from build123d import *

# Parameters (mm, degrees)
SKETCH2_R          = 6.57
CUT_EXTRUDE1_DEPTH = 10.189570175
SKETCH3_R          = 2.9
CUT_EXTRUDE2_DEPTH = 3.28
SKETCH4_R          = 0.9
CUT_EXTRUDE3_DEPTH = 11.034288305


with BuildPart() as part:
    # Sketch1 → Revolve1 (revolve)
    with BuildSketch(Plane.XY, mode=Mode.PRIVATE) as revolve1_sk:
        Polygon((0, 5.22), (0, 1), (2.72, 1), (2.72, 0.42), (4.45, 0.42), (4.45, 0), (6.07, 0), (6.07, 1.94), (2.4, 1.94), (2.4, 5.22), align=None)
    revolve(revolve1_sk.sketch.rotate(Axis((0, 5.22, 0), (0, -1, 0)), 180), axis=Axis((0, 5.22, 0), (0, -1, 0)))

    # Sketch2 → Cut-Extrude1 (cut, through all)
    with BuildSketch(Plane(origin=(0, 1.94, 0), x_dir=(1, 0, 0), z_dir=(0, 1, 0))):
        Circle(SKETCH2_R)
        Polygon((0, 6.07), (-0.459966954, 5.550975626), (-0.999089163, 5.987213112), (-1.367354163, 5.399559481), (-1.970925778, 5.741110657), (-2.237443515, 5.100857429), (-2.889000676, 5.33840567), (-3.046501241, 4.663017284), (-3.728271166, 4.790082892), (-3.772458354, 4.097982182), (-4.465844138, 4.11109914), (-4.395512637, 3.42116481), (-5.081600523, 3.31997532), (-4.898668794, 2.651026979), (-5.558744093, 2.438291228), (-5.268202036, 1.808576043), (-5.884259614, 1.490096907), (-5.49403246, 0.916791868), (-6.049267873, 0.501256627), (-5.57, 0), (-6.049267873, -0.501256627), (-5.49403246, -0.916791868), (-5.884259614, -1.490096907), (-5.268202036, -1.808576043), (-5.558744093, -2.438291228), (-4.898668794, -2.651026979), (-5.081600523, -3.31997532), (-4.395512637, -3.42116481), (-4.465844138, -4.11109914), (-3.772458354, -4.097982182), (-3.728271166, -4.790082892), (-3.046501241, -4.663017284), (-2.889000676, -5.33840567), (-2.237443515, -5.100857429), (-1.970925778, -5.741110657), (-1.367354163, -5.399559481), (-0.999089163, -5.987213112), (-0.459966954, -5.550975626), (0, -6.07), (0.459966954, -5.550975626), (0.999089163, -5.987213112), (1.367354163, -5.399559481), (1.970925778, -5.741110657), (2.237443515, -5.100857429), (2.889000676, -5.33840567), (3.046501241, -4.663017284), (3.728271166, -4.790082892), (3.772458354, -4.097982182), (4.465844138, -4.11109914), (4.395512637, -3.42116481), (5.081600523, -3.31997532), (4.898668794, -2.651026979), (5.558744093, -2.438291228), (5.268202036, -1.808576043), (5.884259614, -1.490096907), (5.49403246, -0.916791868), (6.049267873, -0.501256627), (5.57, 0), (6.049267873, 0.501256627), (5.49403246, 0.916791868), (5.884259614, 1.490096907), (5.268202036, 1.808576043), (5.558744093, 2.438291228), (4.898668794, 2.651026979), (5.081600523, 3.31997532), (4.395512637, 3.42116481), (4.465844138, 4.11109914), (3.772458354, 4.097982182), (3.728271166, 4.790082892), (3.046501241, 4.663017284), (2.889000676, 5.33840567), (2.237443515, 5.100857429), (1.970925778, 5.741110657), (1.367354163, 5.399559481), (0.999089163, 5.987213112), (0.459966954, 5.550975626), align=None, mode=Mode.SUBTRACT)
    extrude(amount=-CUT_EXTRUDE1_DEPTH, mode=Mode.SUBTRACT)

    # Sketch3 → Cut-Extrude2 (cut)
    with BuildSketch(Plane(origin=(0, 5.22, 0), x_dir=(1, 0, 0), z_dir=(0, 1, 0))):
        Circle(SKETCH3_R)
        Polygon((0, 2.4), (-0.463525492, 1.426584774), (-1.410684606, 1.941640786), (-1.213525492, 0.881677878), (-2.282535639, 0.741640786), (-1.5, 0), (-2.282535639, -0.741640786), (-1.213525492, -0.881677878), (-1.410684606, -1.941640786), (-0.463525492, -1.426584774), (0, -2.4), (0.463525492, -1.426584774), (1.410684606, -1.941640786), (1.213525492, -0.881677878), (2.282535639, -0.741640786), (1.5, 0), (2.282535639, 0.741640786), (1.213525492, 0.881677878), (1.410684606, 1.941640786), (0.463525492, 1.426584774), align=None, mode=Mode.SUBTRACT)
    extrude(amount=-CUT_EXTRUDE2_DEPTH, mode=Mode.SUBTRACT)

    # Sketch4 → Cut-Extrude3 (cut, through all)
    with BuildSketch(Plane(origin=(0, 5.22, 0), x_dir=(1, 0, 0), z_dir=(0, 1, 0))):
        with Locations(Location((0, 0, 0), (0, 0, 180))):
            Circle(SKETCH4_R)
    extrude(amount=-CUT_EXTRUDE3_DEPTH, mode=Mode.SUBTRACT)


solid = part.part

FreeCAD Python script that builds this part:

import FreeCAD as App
import Part
import Sketcher

V = App.Vector


def add_polygon(sketch, points):
    """Adds a closed chain of lines whose ends are joined by coincident constraints."""
    first, n = sketch.GeometryCount, len(points)
    for a, b in zip(points, points[1:] + points[:1]):
        sketch.addGeometry(Part.LineSegment(App.Vector(*a, 0), App.Vector(*b, 0)), False)
    for i in range(n):
        sketch.addConstraint(Sketcher.Constraint("Coincident", first + i, 2, first + (i + 1) % n, 1))

doc = App.newDocument("Part")
params = doc.addObject("Spreadsheet::Sheet", "Params")
for row, (alias, value) in enumerate([
    ("sketch1_width", "2.4 mm"),
    ("sketch1_width2", "2.72 mm"),
    ("sketch1_width3", "1.73 mm"),
    ("sketch1_width4", "1.62 mm"),
    ("sketch1_height", "4.22 mm"),
    ("revolution_angle", "360 deg"),
    ("sketch2_diameter", "13.14 mm"),
    ("sketch3_diameter", "5.8 mm"),
    ("pocket2_length", "3.28 mm"),
    ("sketch4_diameter", "1.8 mm"),
], start=1):
    params.set(f"A{row}", alias)
    params.set(f"B{row}", "=" + value)
    params.setAlias(f"B{row}", alias)

body = doc.addObject("PartDesign::Body", "Body")

# Sketch on XY plane
sketch1 = body.newObject("Sketcher::SketchObject", "Sketch")
sketch1.AttachmentSupport = (doc.getObject("XY_Plane"), [""])
sketch1.MapMode = "FlatFace"
add_polygon(sketch1, [(0, 5.22), (0, 1), (2.72, 1), (2.72, 0.42), (4.45, 0.42), (4.45, 0), (6.07, 0), (6.07, 1.94), (2.4, 1.94), (2.4, 5.22)])  # lines 0-9
sketch1.addConstraint([
    Sketcher.Constraint("Vertical", 0),
    Sketcher.Constraint("Horizontal", 1),
    Sketcher.Constraint("Vertical", 2),
    Sketcher.Constraint("Horizontal", 3),
    Sketcher.Constraint("Vertical", 4),
    Sketcher.Constraint("Horizontal", 5),
    Sketcher.Constraint("Vertical", 6),
    Sketcher.Constraint("Horizontal", 7),
    Sketcher.Constraint("Vertical", 8),
    Sketcher.Constraint("Horizontal", 9),
    Sketcher.Constraint("PointOnObject", 0, 2, -2),
    Sketcher.Constraint("PointOnObject", 4, 2, -1),
    Sketcher.Constraint("DistanceX", 9, 2, 9, 1, 2.4),
    Sketcher.Constraint("DistanceY", -1, 1, 0, 2, 1.0),
    Sketcher.Constraint("DistanceX", 1, 1, 1, 2, 2.72),
    Sketcher.Constraint("DistanceX", 3, 1, 3, 2, 1.73),
    Sketcher.Constraint("DistanceX", 5, 1, 5, 2, 1.62),
    Sketcher.Constraint("DistanceY", 0, 2, 0, 1, 4.22),
    Sketcher.Constraint("DistanceY", 2, 2, 2, 1, 0.58),
    Sketcher.Constraint("DistanceY", 6, 1, 6, 2, 1.94),
])
sketch1.setExpression("Constraints[22]", "Params.sketch1_width")
sketch1.setExpression("Constraints[24]", "Params.sketch1_width2")
sketch1.setExpression("Constraints[25]", "Params.sketch1_width3")
sketch1.setExpression("Constraints[26]", "Params.sketch1_width4")
sketch1.setExpression("Constraints[27]", "Params.sketch1_height")
revolution = body.newObject("PartDesign::Revolution", "Revolution")
revolution.Profile = sketch1
revolution.ReferenceAxis = (sketch1, ["V_Axis"])
revolution.setExpression("Angle", "Params.revolution_angle")

# Sketch on XZ plane
sketch2 = body.newObject("Sketcher::SketchObject", "Sketch001")
sketch2.AttachmentSupport = (doc.getObject("XZ_Plane"), [""])
sketch2.MapMode = "FlatFace"
sketch2.AttachmentOffset = App.Placement(V(0, 0, -1.94), App.Rotation())
sketch2.addGeometry(Part.Circle(V(0, 0, 0), V(0, 0, 1), 6.6), False)  # 0
add_polygon(sketch2, [(-0.5, -5.6), (0, -6.1), (0.5, -5.6), (1, -6), (1.4, -5.4), (2, -5.7), (2.2, -5.1), (2.9, -5.3), (3, -4.7), (3.7, -4.8), (3.8, -4.1), (4.5, -4.1), (4.4, -3.4), (5.1, -3.3), (4.9, -2.7), (5.6, -2.4), (5.3, -1.8), (5.9, -1.5), (5.5, -0.9), (6, -0.5), (5.6, 0), (6, 0.5), (5.5, 0.9), (5.9, 1.5), (5.3, 1.8), (5.6, 2.4), (4.9, 2.7), (5.1, 3.3), (4.4, 3.4), (4.5, 4.1), (3.8, 4.1), (3.7, 4.8), (3, 4.7), (2.9, 5.3), (2.2, 5.1), (2, 5.7), (1.4, 5.4), (1, 6), (0.5, 5.6), (0, 6.1), (-0.5, 5.6), (-1, 6), (-1.4, 5.4), (-2, 5.7), (-2.2, 5.1), (-2.9, 5.3), (-3, 4.7), (-3.7, 4.8), (-3.8, 4.1), (-4.5, 4.1), (-4.4, 3.4), (-5.1, 3.3), (-4.9, 2.7), (-5.6, 2.4), (-5.3, 1.8), (-5.9, 1.5), (-5.5, 0.9), (-6, 0.5), (-5.6, 0), (-6, -0.5), (-5.5, -0.9), (-5.9, -1.5), (-5.3, -1.8), (-5.6, -2.4), (-4.9, -2.7), (-5.1, -3.3), (-4.4, -3.4), (-4.5, -4.1), (-3.8, -4.1), (-3.7, -4.8), (-3, -4.7), (-2.9, -5.3), (-2.2, -5.1), (-2, -5.7), (-1.4, -5.4), (-1, -6)])  # lines 1-76
sketch2.addConstraint([
    Sketcher.Constraint("Coincident", 0, 3, -1, 1),
    Sketcher.Constraint("Symmetric", 1, 2, 39, 2, -1, 1),
    Sketcher.Constraint("Symmetric", 2, 2, 40, 2, -1, 1),
    Sketcher.Constraint("Symmetric", 3, 2, 41, 2, -1, 1),
    Sketcher.Constraint("Symmetric", 4, 2, 42, 2, -1, 1),
    Sketcher.Constraint("Symmetric", 5, 2, 43, 2, -1, 1),
    Sketcher.Constraint("Symmetric", 6, 2, 44, 2, -1, 1),
    Sketcher.Constraint("Symmetric", 7, 2, 45, 2, -1, 1),
    Sketcher.Constraint("Symmetric", 8, 2, 46, 2, -1, 1),
    Sketcher.Constraint("Symmetric", 9, 2, 47, 2, -1, 1),
    Sketcher.Constraint("Symmetric", 10, 2, 48, 2, -1, 1),
    Sketcher.Constraint("Symmetric", 11, 2, 49, 2, -1, 1),
    Sketcher.Constraint("Symmetric", 12, 2, 50, 2, -1, 1),
    Sketcher.Constraint("Symmetric", 13, 2, 51, 2, -1, 1),
    Sketcher.Constraint("Symmetric", 14, 2, 52, 2, -1, 1),
    Sketcher.Constraint("Symmetric", 15, 2, 53, 2, -1, 1),
    Sketcher.Constraint("Symmetric", 16, 2, 54, 2, -1, 1),
    Sketcher.Constraint("Symmetric", 17, 2, 55, 2, -1, 1),
    Sketcher.Constraint("Symmetric", 18, 2, 56, 2, -1, 1),
    Sketcher.Constraint("Symmetric", 19, 2, 57, 2, -1, 1),
    Sketcher.Constraint("Symmetric", 20, 2, 58, 2, -1, 1),
    Sketcher.Constraint("Symmetric", 21, 2, 59, 2, -1, 1),
    Sketcher.Constraint("Symmetric", 22, 2, 60, 2, -1, 1),
    Sketcher.Constraint("Symmetric", 23, 2, 61, 2, -1, 1),
    Sketcher.Constraint("Symmetric", 24, 2, 62, 2, -1, 1),
    Sketcher.Constraint("Symmetric", 25, 2, 63, 2, -1, 1),
    Sketcher.Constraint("Symmetric", 26, 2, 64, 2, -1, 1),
    Sketcher.Constraint("Symmetric", 27, 2, 65, 2, -1, 1),
    Sketcher.Constraint("Symmetric", 28, 2, 66, 2, -1, 1),
    Sketcher.Constraint("Symmetric", 29, 2, 67, 2, -1, 1),
    Sketcher.Constraint("Symmetric", 30, 2, 68, 2, -1, 1),
    Sketcher.Constraint("Symmetric", 31, 2, 69, 2, -1, 1),
    Sketcher.Constraint("Symmetric", 32, 2, 70, 2, -1, 1),
    Sketcher.Constraint("Symmetric", 33, 2, 71, 2, -1, 1),
    Sketcher.Constraint("Symmetric", 34, 2, 72, 2, -1, 1),
    Sketcher.Constraint("Symmetric", 35, 2, 73, 2, -1, 1),
    Sketcher.Constraint("Symmetric", 36, 2, 74, 2, -1, 1),
    Sketcher.Constraint("Symmetric", 37, 2, 75, 2, -1, 1),
    Sketcher.Constraint("Symmetric", 38, 2, 76, 2, -1, 1),
    Sketcher.Constraint("Symmetric", 38, 2, 40, 2, -2),
    Sketcher.Constraint("Symmetric", 37, 2, 41, 2, -2),
    Sketcher.Constraint("Symmetric", 36, 2, 42, 2, -2),
    Sketcher.Constraint("Symmetric", 35, 2, 43, 2, -2),
    Sketcher.Constraint("Symmetric", 34, 2, 44, 2, -2),
    Sketcher.Constraint("Symmetric", 33, 2, 45, 2, -2),
    Sketcher.Constraint("Symmetric", 32, 2, 46, 2, -2),
    Sketcher.Constraint("Symmetric", 31, 2, 47, 2, -2),
    Sketcher.Constraint("Symmetric", 30, 2, 48, 2, -2),
    Sketcher.Constraint("Symmetric", 29, 2, 49, 2, -2),
    Sketcher.Constraint("Symmetric", 28, 2, 50, 2, -2),
    Sketcher.Constraint("Symmetric", 27, 2, 51, 2, -2),
    Sketcher.Constraint("Symmetric", 26, 2, 52, 2, -2),
    Sketcher.Constraint("Symmetric", 25, 2, 53, 2, -2),
    Sketcher.Constraint("Symmetric", 24, 2, 54, 2, -2),
    Sketcher.Constraint("Symmetric", 23, 2, 55, 2, -2),
    Sketcher.Constraint("Symmetric", 22, 2, 56, 2, -2),
    Sketcher.Constraint("Symmetric", 21, 2, 57, 2, -2),
    Sketcher.Constraint("PointOnObject", 1, 2, -2),
    Sketcher.Constraint("PointOnObject", 20, 2, -1),
    Sketcher.Constraint("Equal", 2, 3),
    Sketcher.Constraint("Equal", 3, 4),
    Sketcher.Constraint("Equal", 4, 5),
    Sketcher.Constraint("Equal", 5, 6),
    Sketcher.Constraint("Equal", 6, 7),
    Sketcher.Constraint("Equal", 7, 8),
    Sketcher.Constraint("Equal", 8, 9),
    Sketcher.Constraint("Equal", 9, 10),
    Sketcher.Constraint("Equal", 10, 11),
    Sketcher.Constraint("Equal", 11, 12),
    Sketcher.Constraint("Equal", 12, 13),
    Sketcher.Constraint("Equal", 13, 14),
    Sketcher.Constraint("Equal", 14, 15),
    Sketcher.Constraint("Equal", 15, 16),
    Sketcher.Constraint("Equal", 16, 17),
    Sketcher.Constraint("Equal", 17, 18),
    Sketcher.Constraint("Equal", 18, 19),
    Sketcher.Constraint("Equal", 19, 20),
    Sketcher.Constraint("Diameter", 0, 13.14),
    Sketcher.Constraint("DistanceY", 1, 2, -1, 1, 6.07),
    Sketcher.Constraint("DistanceX", -1, 1, 20, 2, 5.57),
    Sketcher.Constraint("DistanceX", -1, 1, 7, 2, 2.889001),
    Sketcher.Constraint("DistanceX", -1, 1, 8, 2, 3.046501),
    Sketcher.Constraint("DistanceY", 11, 2, -1, 1, 4.111099),
    Sketcher.Constraint("DistanceX", -1, 1, 13, 2, 5.081601),
    Sketcher.Constraint("Distance", 1, 0.69351),
    Sketcher.Constraint("DistanceX", -1, 1, 3, 2, 0.999089),
    Sketcher.Constraint("DistanceY", 4, 2, -1, 1, 5.399559),
    Sketcher.Constraint("DistanceY", 5, 2, -1, 1, 5.741111),
    Sketcher.Constraint("DistanceX", -1, 1, 9, 2, 3.728271),
    Sketcher.Constraint("DistanceX", -1, 1, 10, 2, 3.772458),
    Sketcher.Constraint("DistanceX", -1, 1, 14, 2, 4.898669),
    Sketcher.Constraint("DistanceY", 15, 2, -1, 1, 2.438291),
    Sketcher.Constraint("DistanceX", -1, 1, 17, 2, 5.88426),
    Sketcher.Constraint("DistanceY", 18, 2, -1, 1, 0.916792),
    Sketcher.Constraint("DistanceX", -1, 1, 2, 2, 0.459967),
    Sketcher.Constraint("DistanceX", -1, 1, 6, 2, 2.237444),
    Sketcher.Constraint("DistanceX", -1, 1, 12, 2, 4.395513),
    Sketcher.Constraint("DistanceX", -1, 1, 16, 2, 5.268202),
])
sketch2.setExpression("Constraints[153]", "Params.sketch2_diameter")
pocket1 = body.newObject("PartDesign::Pocket", "Pocket")
pocket1.Profile = sketch2
pocket1.Type = "ThroughAll"
pocket1.Reversed = True

# Sketch on XZ plane
sketch3 = body.newObject("Sketcher::SketchObject", "Sketch002")
sketch3.AttachmentSupport = (doc.getObject("XZ_Plane"), [""])
sketch3.MapMode = "FlatFace"
sketch3.AttachmentOffset = App.Placement(V(0, 0, -5.22), App.Rotation())
sketch3.addGeometry(Part.Circle(V(0, 0, 0), V(0, 0, 1), 2.9), False)  # 0
add_polygon(sketch3, [(-0.5, -1.4), (0, -2.4), (0.5, -1.4), (1.4, -1.9), (1.2, -0.9), (2.3, -0.7), (1.5, 0), (2.3, 0.7), (1.2, 0.9), (1.4, 1.9), (0.5, 1.4), (0, 2.4), (-0.5, 1.4), (-1.4, 1.9), (-1.2, 0.9), (-2.3, 0.7), (-1.5, 0), (-2.3, -0.7), (-1.2, -0.9), (-1.4, -1.9)])  # lines 1-20
sketch3.addConstraint([
    Sketcher.Constraint("Coincident", 0, 3, -1, 1),
    Sketcher.Constraint("Symmetric", 1, 2, 11, 2, -1, 1),
    Sketcher.Constraint("Symmetric", 2, 2, 12, 2, -1, 1),
    Sketcher.Constraint("Symmetric", 3, 2, 13, 2, -1, 1),
    Sketcher.Constraint("Symmetric", 4, 2, 14, 2, -1, 1),
    Sketcher.Constraint("Symmetric", 5, 2, 15, 2, -1, 1),
    Sketcher.Constraint("Symmetric", 6, 2, 16, 2, -1, 1),
    Sketcher.Constraint("Symmetric", 7, 2, 17, 2, -1, 1),
    Sketcher.Constraint("Symmetric", 8, 2, 18, 2, -1, 1),
    Sketcher.Constraint("Symmetric", 9, 2, 19, 2, -1, 1),
    Sketcher.Constraint("Symmetric", 10, 2, 20, 2, -1, 1),
    Sketcher.Constraint("Symmetric", 10, 2, 12, 2, -2),
    Sketcher.Constraint("Symmetric", 9, 2, 13, 2, -2),
    Sketcher.Constraint("Symmetric", 8, 2, 14, 2, -2),
    Sketcher.Constraint("Symmetric", 7, 2, 15, 2, -2),
    Sketcher.Constraint("PointOnObject", 1, 2, -2),
    Sketcher.Constraint("PointOnObject", 6, 2, -1),
    Sketcher.Constraint("Equal", 2, 3),
    Sketcher.Constraint("Equal", 3, 4),
    Sketcher.Constraint("Equal", 4, 5),
    Sketcher.Constraint("Equal", 5, 6),
    Sketcher.Constraint("Diameter", 0, 5.8),
    Sketcher.Constraint("DistanceY", 1, 2, -1, 1, 2.4),
    Sketcher.Constraint("DistanceX", -1, 1, 6, 2, 1.5),
    Sketcher.Constraint("DistanceY", 3, 2, 5, 2, 1.2),
    Sketcher.Constraint("DistanceX", 2, 2, 4, 2, 0.75),
    Sketcher.Constraint("DistanceY", 3, 2, -1, 1, 1.941641),
    Sketcher.Constraint("DistanceX", 2, 2, 3, 2, 0.947159),
])
sketch3.setExpression("Constraints[41]", "Params.sketch3_diameter")
pocket2 = body.newObject("PartDesign::Pocket", "Pocket001")
pocket2.Profile = sketch3
pocket2.setExpression("Length", "Params.pocket2_length")
pocket2.Reversed = True

# Sketch on XZ plane
sketch4 = body.newObject("Sketcher::SketchObject", "Sketch003")
sketch4.AttachmentSupport = (doc.getObject("XZ_Plane"), [""])
sketch4.MapMode = "FlatFace"
sketch4.AttachmentOffset = App.Placement(V(0, 0, -5.22), App.Rotation())
sketch4.addGeometry(Part.Circle(V(0, 0, 0), V(0, 0, 1), 0.9), False)
sketch4.addConstraint([
    Sketcher.Constraint("Coincident", 0, 3, -1, 1),
    Sketcher.Constraint("Diameter", 0, 1.8),
])
sketch4.setExpression("Constraints[1]", "Params.sketch4_diameter")
pocket3 = body.newObject("PartDesign::Pocket", "Pocket002")
pocket3.Profile = sketch4
pocket3.Type = "ThroughAll"
pocket3.Reversed = True

doc.recompute()
